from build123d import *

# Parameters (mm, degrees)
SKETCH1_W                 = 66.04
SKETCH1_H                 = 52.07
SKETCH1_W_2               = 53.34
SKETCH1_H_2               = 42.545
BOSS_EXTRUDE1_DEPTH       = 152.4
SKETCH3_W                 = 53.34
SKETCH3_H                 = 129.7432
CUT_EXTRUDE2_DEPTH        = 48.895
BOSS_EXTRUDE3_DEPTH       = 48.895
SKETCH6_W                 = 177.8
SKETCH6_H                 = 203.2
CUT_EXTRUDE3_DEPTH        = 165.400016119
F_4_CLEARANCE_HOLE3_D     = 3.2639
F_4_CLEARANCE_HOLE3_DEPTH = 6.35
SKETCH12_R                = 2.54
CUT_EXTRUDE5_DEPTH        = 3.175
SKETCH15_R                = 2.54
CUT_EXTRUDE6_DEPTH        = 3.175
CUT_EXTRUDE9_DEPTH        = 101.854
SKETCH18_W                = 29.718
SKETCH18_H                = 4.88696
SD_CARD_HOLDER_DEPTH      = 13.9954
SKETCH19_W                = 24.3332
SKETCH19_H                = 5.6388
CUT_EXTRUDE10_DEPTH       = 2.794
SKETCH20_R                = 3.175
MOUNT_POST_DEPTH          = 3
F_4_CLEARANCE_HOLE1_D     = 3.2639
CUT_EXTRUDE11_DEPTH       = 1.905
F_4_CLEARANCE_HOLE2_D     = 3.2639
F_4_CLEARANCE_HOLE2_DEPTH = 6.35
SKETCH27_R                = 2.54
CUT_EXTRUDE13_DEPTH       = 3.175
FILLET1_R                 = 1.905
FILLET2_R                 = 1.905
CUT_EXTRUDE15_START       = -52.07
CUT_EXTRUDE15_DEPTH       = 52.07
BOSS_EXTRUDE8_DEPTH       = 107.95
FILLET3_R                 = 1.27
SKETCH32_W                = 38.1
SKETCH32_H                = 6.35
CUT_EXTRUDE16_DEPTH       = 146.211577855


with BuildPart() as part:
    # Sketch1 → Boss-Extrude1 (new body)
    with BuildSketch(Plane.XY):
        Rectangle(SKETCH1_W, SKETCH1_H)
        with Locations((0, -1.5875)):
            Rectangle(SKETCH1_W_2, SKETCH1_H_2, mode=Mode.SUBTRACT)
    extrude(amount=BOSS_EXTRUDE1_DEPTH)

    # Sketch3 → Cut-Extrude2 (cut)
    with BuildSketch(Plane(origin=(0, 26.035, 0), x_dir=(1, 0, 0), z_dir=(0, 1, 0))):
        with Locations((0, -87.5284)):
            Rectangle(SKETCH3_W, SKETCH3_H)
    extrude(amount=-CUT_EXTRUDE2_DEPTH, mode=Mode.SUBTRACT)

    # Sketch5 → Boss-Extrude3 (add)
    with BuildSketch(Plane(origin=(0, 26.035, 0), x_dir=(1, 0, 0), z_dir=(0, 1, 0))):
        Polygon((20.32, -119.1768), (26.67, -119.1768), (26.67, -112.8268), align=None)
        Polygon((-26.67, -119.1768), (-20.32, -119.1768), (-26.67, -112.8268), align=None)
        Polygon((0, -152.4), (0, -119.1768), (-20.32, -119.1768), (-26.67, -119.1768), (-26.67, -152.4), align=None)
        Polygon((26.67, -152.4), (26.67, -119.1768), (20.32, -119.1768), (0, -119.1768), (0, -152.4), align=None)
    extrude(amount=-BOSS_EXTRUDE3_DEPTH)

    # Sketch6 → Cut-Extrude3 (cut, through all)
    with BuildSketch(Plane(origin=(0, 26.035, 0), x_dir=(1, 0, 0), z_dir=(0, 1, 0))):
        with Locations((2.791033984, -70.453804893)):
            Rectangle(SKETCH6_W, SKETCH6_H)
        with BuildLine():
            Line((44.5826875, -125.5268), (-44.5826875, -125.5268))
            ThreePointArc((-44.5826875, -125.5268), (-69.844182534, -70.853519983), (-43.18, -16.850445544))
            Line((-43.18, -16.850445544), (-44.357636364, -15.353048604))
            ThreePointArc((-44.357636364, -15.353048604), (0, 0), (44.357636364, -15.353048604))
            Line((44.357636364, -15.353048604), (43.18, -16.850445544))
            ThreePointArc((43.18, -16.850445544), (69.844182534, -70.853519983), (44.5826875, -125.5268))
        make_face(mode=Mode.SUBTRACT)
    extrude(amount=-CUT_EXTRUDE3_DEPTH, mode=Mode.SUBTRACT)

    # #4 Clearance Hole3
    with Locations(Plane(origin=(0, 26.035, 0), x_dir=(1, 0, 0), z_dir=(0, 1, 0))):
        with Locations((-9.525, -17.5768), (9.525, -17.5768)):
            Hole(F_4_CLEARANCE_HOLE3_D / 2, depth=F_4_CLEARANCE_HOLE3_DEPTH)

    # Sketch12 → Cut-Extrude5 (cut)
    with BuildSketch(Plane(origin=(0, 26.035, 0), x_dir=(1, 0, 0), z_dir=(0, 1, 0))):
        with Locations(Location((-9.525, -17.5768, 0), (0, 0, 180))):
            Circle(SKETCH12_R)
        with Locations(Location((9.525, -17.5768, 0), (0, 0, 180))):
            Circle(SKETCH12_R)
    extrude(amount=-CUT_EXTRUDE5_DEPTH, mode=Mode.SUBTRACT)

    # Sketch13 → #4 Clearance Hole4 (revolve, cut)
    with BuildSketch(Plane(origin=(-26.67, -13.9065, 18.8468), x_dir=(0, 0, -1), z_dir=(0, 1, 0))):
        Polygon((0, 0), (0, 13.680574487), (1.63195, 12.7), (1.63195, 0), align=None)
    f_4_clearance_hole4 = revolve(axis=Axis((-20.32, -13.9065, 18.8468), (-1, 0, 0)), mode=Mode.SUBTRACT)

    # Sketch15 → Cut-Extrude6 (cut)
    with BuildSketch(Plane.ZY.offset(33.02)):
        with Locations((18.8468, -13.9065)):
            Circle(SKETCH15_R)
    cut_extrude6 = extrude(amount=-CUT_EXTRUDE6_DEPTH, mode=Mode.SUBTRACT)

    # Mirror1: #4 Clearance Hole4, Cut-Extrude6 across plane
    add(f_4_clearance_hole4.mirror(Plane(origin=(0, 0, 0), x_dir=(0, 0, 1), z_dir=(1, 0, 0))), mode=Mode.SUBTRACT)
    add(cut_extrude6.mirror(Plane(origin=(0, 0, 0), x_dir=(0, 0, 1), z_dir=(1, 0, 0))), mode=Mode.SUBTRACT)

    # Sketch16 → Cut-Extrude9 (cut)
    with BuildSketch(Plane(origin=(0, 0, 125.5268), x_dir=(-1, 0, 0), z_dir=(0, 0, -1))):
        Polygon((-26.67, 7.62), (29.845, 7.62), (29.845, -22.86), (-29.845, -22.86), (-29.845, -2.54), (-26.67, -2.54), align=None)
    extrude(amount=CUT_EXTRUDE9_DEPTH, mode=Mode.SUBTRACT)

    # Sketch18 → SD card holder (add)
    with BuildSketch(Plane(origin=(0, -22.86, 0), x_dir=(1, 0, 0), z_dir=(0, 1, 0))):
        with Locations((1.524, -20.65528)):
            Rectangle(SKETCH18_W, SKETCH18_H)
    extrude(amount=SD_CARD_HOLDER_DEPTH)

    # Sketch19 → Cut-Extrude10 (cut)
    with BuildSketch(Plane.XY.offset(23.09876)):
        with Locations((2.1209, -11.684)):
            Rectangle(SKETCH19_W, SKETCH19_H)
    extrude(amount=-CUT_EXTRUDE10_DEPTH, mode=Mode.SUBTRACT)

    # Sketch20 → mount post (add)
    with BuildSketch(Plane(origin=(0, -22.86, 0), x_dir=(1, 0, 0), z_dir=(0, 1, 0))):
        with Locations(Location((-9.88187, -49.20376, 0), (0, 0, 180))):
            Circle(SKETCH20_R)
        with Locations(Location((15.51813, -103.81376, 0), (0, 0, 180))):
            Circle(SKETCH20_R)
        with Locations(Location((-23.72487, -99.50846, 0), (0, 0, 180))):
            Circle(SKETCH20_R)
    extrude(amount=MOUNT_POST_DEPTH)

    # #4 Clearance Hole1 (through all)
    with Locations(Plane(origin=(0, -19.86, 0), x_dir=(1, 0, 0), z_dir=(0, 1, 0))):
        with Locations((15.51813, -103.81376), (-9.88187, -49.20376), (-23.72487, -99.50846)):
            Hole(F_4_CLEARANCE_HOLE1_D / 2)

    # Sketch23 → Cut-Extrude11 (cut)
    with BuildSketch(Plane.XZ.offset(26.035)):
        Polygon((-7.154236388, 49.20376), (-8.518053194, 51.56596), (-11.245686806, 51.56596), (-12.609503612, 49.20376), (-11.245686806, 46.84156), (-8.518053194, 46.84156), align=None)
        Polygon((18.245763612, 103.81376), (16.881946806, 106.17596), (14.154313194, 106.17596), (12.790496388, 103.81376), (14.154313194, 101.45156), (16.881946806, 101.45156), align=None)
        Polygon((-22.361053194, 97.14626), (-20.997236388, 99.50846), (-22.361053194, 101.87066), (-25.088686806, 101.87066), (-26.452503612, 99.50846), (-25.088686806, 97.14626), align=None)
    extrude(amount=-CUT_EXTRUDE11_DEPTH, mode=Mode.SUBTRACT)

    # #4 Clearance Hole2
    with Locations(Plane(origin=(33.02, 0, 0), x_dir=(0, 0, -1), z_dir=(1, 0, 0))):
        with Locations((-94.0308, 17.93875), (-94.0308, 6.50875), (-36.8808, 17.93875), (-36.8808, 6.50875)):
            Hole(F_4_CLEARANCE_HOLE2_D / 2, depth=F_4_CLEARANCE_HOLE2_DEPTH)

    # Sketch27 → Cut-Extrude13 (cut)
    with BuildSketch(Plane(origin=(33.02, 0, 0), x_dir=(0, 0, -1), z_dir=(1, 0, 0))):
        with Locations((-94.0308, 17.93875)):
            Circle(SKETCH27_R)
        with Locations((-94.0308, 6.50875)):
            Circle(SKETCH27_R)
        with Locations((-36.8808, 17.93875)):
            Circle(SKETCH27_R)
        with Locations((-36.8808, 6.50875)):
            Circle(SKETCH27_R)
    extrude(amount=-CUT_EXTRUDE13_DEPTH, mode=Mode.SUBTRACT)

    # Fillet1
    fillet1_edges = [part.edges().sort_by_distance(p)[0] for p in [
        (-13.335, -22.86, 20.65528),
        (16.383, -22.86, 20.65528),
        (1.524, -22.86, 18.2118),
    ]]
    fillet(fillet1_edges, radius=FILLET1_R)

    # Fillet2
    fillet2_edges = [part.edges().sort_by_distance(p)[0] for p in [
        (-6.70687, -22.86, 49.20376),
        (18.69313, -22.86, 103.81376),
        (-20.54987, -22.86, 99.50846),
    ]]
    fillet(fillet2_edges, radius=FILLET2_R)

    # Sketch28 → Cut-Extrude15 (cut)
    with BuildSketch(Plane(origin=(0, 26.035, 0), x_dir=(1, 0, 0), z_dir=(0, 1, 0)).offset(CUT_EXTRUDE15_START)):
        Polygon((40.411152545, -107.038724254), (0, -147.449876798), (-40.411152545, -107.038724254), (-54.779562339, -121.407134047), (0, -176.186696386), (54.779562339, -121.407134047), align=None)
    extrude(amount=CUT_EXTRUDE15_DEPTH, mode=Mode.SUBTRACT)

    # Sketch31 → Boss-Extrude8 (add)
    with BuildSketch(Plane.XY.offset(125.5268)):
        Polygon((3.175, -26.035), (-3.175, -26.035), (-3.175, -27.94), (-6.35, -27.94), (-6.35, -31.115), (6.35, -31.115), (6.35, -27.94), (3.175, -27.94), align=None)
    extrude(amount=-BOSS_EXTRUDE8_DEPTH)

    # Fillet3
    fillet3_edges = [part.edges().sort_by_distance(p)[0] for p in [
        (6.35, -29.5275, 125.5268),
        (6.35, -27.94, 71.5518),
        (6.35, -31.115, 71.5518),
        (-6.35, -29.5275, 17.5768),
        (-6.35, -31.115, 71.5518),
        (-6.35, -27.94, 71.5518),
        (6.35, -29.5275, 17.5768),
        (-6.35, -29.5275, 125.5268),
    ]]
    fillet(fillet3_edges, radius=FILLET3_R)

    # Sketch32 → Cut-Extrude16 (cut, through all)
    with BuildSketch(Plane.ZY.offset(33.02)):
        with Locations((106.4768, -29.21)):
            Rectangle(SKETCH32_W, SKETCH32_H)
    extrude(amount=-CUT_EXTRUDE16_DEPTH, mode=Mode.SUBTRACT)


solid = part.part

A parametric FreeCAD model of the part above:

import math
import FreeCAD as App
import Part
import Sketcher
from FreeCAD import Vector
Q = App.Units.Quantity


def edges_at(feature, points):
    """Names of the edges that pass closest to the given points."""
    edges = feature.Shape.Edges
    near = lambda p: min(range(len(edges)), key=lambda i: edges[i].distToShape(Part.Vertex(*p))[0])
    return sorted({f"Edge{near(p) + 1}" for p in points})

doc = App.newDocument("Part")
body = doc.addObject("PartDesign::Body", "Body")

# Sketch on XY plane
sketch1 = doc.addObject("Sketcher::SketchObject", "Sketch")
body.addObject(sketch1)
sketch1.AttachmentSupport = (doc.XY_Plane, [""])
sketch1.MapMode = "FlatFace"
sketch1.addGeometry([
    Part.LineSegment(Vector(-33, 26, 0), Vector(-33, -26, 0)),  # 0
    Part.LineSegment(Vector(-33, -26, 0), Vector(33, -26, 0)),  # 1
    Part.LineSegment(Vector(33, -26, 0), Vector(33, 26, 0)),  # 2
    Part.LineSegment(Vector(33, 26, 0), Vector(-33, 26, 0)),  # 3
    Part.LineSegment(Vector(27, -23, 0), Vector(-27, -23, 0)),  # 4
    Part.LineSegment(Vector(-27, -23, 0), Vector(-27, 20, 0)),  # 5
    Part.LineSegment(Vector(-27, 20, 0), Vector(27, 20, 0)),  # 6
    Part.LineSegment(Vector(27, 20, 0), Vector(27, -23, 0)),  # 7
], False)
sketch1.addConstraint([
    Sketcher.Constraint("Coincident", 0, 2, 1, 1),
    Sketcher.Constraint("Coincident", 1, 2, 2, 1),
    Sketcher.Constraint("Coincident", 2, 2, 3, 1),
    Sketcher.Constraint("Coincident", 3, 2, 0, 1),
    Sketcher.Constraint("Coincident", 4, 2, 5, 1),
    Sketcher.Constraint("Coincident", 5, 2, 6, 1),
    Sketcher.Constraint("Coincident", 6, 2, 7, 1),
    Sketcher.Constraint("Coincident", 7, 2, 4, 1),
    Sketcher.Constraint("Vertical", 0),
    Sketcher.Constraint("Horizontal", 1),
    Sketcher.Constraint("Vertical", 2),
    Sketcher.Constraint("Horizontal", 3),
    Sketcher.Constraint("Horizontal", 4),
    Sketcher.Constraint("Vertical", 5),
    Sketcher.Constraint("Horizontal", 6),
    Sketcher.Constraint("Vertical", 7),
    Sketcher.Constraint("Symmetric", 0, 2, 2, 2, -1, 1),
    Sketcher.Constraint("DistanceX", 1, 1, 1, 2, Q("2.6 in")),
    Sketcher.Constraint("DistanceX", 4, 2, 4, 1, Q("2.1 in")),
    Sketcher.Constraint("DistanceY", 0, 2, 0, 1, Q("2.05 in")),
    Sketcher.Constraint("DistanceY", 4, 2, -1, 1, Q("0.9 in")),
    Sketcher.Constraint("DistanceY", 0, 2, 5, 2, Q("1.8 in")),
    Sketcher.Constraint("DistanceX", 4, 2, -1, 1, Q("1.05 in")),
])
pad1 = doc.addObject("PartDesign::Pad", "Pad")
body.addObject(pad1)
pad1.Profile = sketch1
pad1.Length = Q("6 in")

# Sketch on XZ plane
sketch2 = doc.addObject("Sketcher::SketchObject", "Sketch001")
body.addObject(sketch2)
sketch2.AttachmentSupport = (doc.XZ_Plane, [""])
sketch2.MapMode = "FlatFace"
sketch2.AttachmentOffset = App.Placement(Vector(0, 0, -1.025 * 25.4), App.Rotation())
sketch2.addGeometry([
    Part.LineSegment(Vector(-27, 23, 0), Vector(-27, 152, 0)),
    Part.LineSegment(Vector(-27, 152, 0), Vector(27, 152, 0)),
    Part.LineSegment(Vector(27, 152, 0), Vector(27, 23, 0)),
    Part.LineSegment(Vector(27, 23, 0), Vector(-27, 23, 0)),
], False)
sketch2.addConstraint([
    Sketcher.Constraint("Coincident", 0, 2, 1, 1),
    Sketcher.Constraint("Coincident", 1, 2, 2, 1),
    Sketcher.Constraint("Coincident", 2, 2, 3, 1),
    Sketcher.Constraint("Coincident", 3, 2, 0, 1),
    Sketcher.Constraint("Vertical", 0),
    Sketcher.Constraint("Horizontal", 1),
    Sketcher.Constraint("Vertical", 2),
    Sketcher.Constraint("Horizontal", 3),
    Sketcher.Constraint("DistanceX", 1, 1, 1, 2, Q("2.1 in")),
    Sketcher.Constraint("DistanceY", -1, 1, 0, 2, Q("6 in")),
    Sketcher.Constraint("DistanceY", 0, 1, 0, 2, Q("5.108 in")),
    Sketcher.Constraint("DistanceX", 0, 2, -1, 1, Q("1.05 in")),
])
pocket1 = doc.addObject("PartDesign::Pocket", "Pocket")
body.addObject(pocket1)
pocket1.Profile = sketch2
pocket1.Length = Q("1.925 in")
pocket1.Reversed = True

# Sketch on XZ plane
sketch3 = doc.addObject("Sketcher::SketchObject", "Sketch002")
body.addObject(sketch3)
sketch3.AttachmentSupport = (doc.XZ_Plane, [""])
sketch3.MapMode = "FlatFace"
sketch3.AttachmentOffset = App.Placement(Vector(0, 0, -1.025 * 25.4), App.Rotation())
sketch3.addGeometry([
    Part.LineSegment(Vector(27, 113, 0), Vector(20, 119, 0)),  # 0
    Part.LineSegment(Vector(20, 119, 0), Vector(-20, 119, 0)),  # 1
    Part.LineSegment(Vector(-20, 119, 0), Vector(-27, 113, 0)),  # 2
    Part.LineSegment(Vector(-27, 113, 0), Vector(-27, 152, 0)),  # 3
    Part.LineSegment(Vector(-27, 152, 0), Vector(27, 152, 0)),  # 4
    Part.LineSegment(Vector(27, 152, 0), Vector(27, 113, 0)),  # 5
], False)
sketch3.addConstraint([
    Sketcher.Constraint("Coincident", 0, 2, 1, 1),
    Sketcher.Constraint("Coincident", 1, 2, 2, 1),
    Sketcher.Constraint("Coincident", 2, 2, 3, 1),
    Sketcher.Constraint("Coincident", 3, 2, 4, 1),
    Sketcher.Constraint("Coincident", 4, 2, 5, 1),
    Sketcher.Constraint("Coincident", 5, 2, 0, 1),
    Sketcher.Constraint("Horizontal", 1),
    Sketcher.Constraint("Vertical", 3),
    Sketcher.Constraint("Horizontal", 4),
    Sketcher.Constraint("Vertical", 5),
    Sketcher.Constraint("Symmetric", 2, 2, 5, 2, -2),
    Sketcher.Constraint("Perpendicular", 0, 2),
    Sketcher.Constraint("Equal", 0, 2),
    Sketcher.Constraint("DistanceX", 1, 2, 1, 1, Q("1.6 in")),
    Sketcher.Constraint("DistanceX", 4, 1, 4, 2, Q("2.1 in")),
    Sketcher.Constraint("DistanceY", -1, 1, 3, 2, Q("6 in")),
    Sketcher.Constraint("DistanceY", 3, 1, 3, 2, Q("1.558 in")),
])
pad2 = doc.addObject("PartDesign::Pad", "Pad001")
body.addObject(pad2)
pad2.Profile = sketch3
pad2.Length = Q("1.925 in")

# Sketch on XZ plane
sketch4 = doc.addObject("Sketcher::SketchObject", "Sketch003")
body.addObject(sketch4)
sketch4.AttachmentSupport = (doc.XZ_Plane, [""])
sketch4.MapMode = "FlatFace"
sketch4.AttachmentOffset = App.Placement(Vector(0, 0, -1.025 * 25.4), App.Rotation())
sketch4.addGeometry([
    Part.LineSegment(Vector(-86.1, -31.1, 0), Vector(-86.1, 172.1, 0)),  # 0
    Part.LineSegment(Vector(-86.1, 172.1, 0), Vector(91.7, 172.1, 0)),  # 1
    Part.LineSegment(Vector(91.7, 172.1, 0), Vector(91.7, -31.1, 0)),  # 2
    Part.LineSegment(Vector(91.7, -31.1, 0), Vector(-86.1, -31.1, 0)),  # 3
    Part.ArcOfCircle(Part.Circle(Vector(0, 71.8, 0), Vector(0, 0, 1), 69.8), math.radians(-52), math.radians(50)),  # 4
    Part.LineSegment(Vector(44.6, 125.5, 0), Vector(-44.6, 125.5, 0)),  # 5
    Part.ArcOfCircle(Part.Circle(Vector(0, 71.8, 0), Vector(0, 0, 1), 69.8), math.radians(130), math.radians(232)),  # 6
    Part.LineSegment(Vector(-43.2, 16.9, 0), Vector(-44.4, 15.4, 0)),  # 7
    Part.ArcOfCircle(Part.Circle(Vector(0, 71.8, 0), Vector(0, 0, 1), 71.8), math.radians(-128), math.radians(-52)),  # 8
    Part.LineSegment(Vector(44.4, 15.4, 0), Vector(43.2, 16.9, 0)),  # 9
], False)
sketch4.addConstraint([
    Sketcher.Constraint("Coincident", 0, 2, 1, 1),
    Sketcher.Constraint("Coincident", 1, 2, 2, 1),
    Sketcher.Constraint("Coincident", 2, 2, 3, 1),
    Sketcher.Constraint("Coincident", 3, 2, 0, 1),
    Sketcher.Constraint("Coincident", 4, 2, 5, 1),
    Sketcher.Constraint("Coincident", 5, 2, 6, 1),
    Sketcher.Constraint("Coincident", 6, 2, 7, 1),
    Sketcher.Constraint("Coincident", 7, 2, 8, 1),
    Sketcher.Constraint("Coincident", 8, 2, 9, 1),
    Sketcher.Constraint("Coincident", 9, 2, 4, 1),
    Sketcher.Constraint("Vertical", 0),
    Sketcher.Constraint("Horizontal", 1),
    Sketcher.Constraint("Vertical", 2),
    Sketcher.Constraint("Horizontal", 3),
    Sketcher.Constraint("Horizontal", 5),
    Sketcher.Constraint("Coincident", 6, 3, 4, 3),
    Sketcher.Constraint("Coincident", 8, 3, 4, 3),
    Sketcher.Constraint("Equal", 4, 6),
    Sketcher.Constraint("Symmetric", 7, 2, 8, 2, -2),
    Sketcher.Constraint("Horizontal", 6, 2, 9, 2),
    Sketcher.Constraint("DistanceX", 1, 1, 1, 2, Q("7 in")),
    Sketcher.Constraint("DistanceY", 0, 1, 0, 2, Q("8 in")),
    Sketcher.Constraint("Radius", 4, Q("2.75 in")),
    Sketcher.Constraint("Radius", 8, Q("2.825 in")),
    Sketcher.Constraint("DistanceX", 6, 2, -1, 1, Q("1.7 in")),
    Sketcher.Constraint("DistanceY", -1, 1, 4, 3, Q("2.825 in")),
    Sketcher.Constraint("DistanceY", -1, 1, 4, 2, Q("4.942 in")),
    Sketcher.Constraint("DistanceY", -1, 1, 7, 2, 15.353049),
    Sketcher.Constraint("DistanceX", 0, 2, 5, 2, 41.526279),
    Sketcher.Constraint("DistanceY", 3, 2, 6, 2, 47.996641),
])
pocket2 = doc.addObject("PartDesign::Pocket", "Pocket001")
body.addObject(pocket2)
pocket2.Profile = sketch4
pocket2.Type = "ThroughAll"
pocket2.Reversed = True

# Sketch on XZ plane
sketch5 = doc.addObject("Sketcher::SketchObject", "Sketch004")
body.addObject(sketch5)
sketch5.AttachmentSupport = (doc.XZ_Plane, [""])
sketch5.MapMode = "FlatFace"
sketch5.AttachmentOffset = App.Placement(Vector(0, 0, -1.025 * 25.4), App.Rotation())
sketch5.addGeometry([
    Part.Circle(Vector(-9.5, 17.6, 0), Vector(0, 0, 1), 1.6),
    Part.Circle(Vector(9.5, 17.6, 0), Vector(0, 0, 1), 1.6),
], False)
sketch5.addConstraint([
    Sketcher.Constraint("Equal", 0, 1),
    Sketcher.Constraint("Symmetric", 0, 3, 1, 3, -2),
    Sketcher.Constraint("Diameter", 0, Q("0.1285 in")),
    Sketcher.Constraint("DistanceX", 0, 3, 1, 3, Q("0.75 in")),
    Sketcher.Constraint("DistanceY", -1, 1, 0, 3, Q("0.692 in")),
])
doc.recompute()
hole = doc.addObject("PartDesign::Hole", "Hole")
body.addObject(hole)
hole.Profile = sketch5
hole.ThreadType = "None"
hole.Diameter = Q("0.1285 in")
hole.DepthType = "Dimension"
hole.Depth = Q("0.25 in")
hole.DrillPoint = "Flat"
hole.Reversed = True

# Sketch on XZ plane
sketch6 = doc.addObject("Sketcher::SketchObject", "Sketch005")
body.addObject(sketch6)
sketch6.AttachmentSupport = (doc.XZ_Plane, [""])
sketch6.MapMode = "FlatFace"
sketch6.AttachmentOffset = App.Placement(Vector(0, 0, -1.025 * 25.4), App.Rotation())
sketch6.addGeometry([
    Part.Circle(Vector(-9.5, 17.6, 0), Vector(0, 0, 1), 2.5),
    Part.Circle(Vector(9.5, 17.6, 0), Vector(0, 0, 1), 2.5),
], False)
sketch6.addConstraint([
    Sketcher.Constraint("Equal", 0, 1),
    Sketcher.Constraint("Symmetric", 0, 3, 1, 3, -2),
    Sketcher.Constraint("Diameter", 0, Q("0.2 in")),
    Sketcher.Constraint("DistanceX", 0, 3, 1, 3, Q("0.75 in")),
    Sketcher.Constraint("DistanceY", -1, 1, 0, 3, Q("0.692 in")),
])
pocket3 = doc.addObject("PartDesign::Pocket", "Pocket002")
body.addObject(pocket3)
pocket3.Profile = sketch6
pocket3.Length = Q("0.125 in")
pocket3.Reversed = True

# Sketch on XZ plane
sketch7 = doc.addObject("Sketcher::SketchObject", "Sketch006")
body.addObject(sketch7)
sketch7.AttachmentSupport = (doc.XZ_Plane, [""])
sketch7.MapMode = "FlatFace"
sketch7.AttachmentOffset = App.Placement(Vector(0, 0, 0.5475 * 25.4), App.Rotation())
sketch7.addGeometry([
    Part.LineSegment(Vector(-40.4, 18.8, 0), Vector(-26.7, 18.8, 0)),
    Part.LineSegment(Vector(-26.7, 18.8, 0), Vector(-26.7, 17.2, 0)),
    Part.LineSegment(Vector(-26.7, 17.2, 0), Vector(-39.4, 17.2, 0)),
    Part.LineSegment(Vector(-39.4, 17.2, 0), Vector(-40.4, 18.8, 0)),
], False)
sketch7.addGeometry(Part.LineSegment(Vector(-26.7, 18.8, 0), Vector(-40.4, 18.8, 0)), True)  # axis
sketch7.addConstraint([
    Sketcher.Constraint("Coincident", 0, 2, 1, 1),
    Sketcher.Constraint("Coincident", 1, 2, 2, 1),
    Sketcher.Constraint("Coincident", 2, 2, 3, 1),
    Sketcher.Constraint("Coincident", 3, 2, 0, 1),
    Sketcher.Constraint("Horizontal", 0),
    Sketcher.Constraint("Vertical", 1),
    Sketcher.Constraint("Horizontal", 2),
    Sketcher.Constraint("Horizontal", 4),
    Sketcher.Constraint("Coincident", 4, 1, 0, 2),
    Sketcher.Constraint("Equal", 0, 4),
    Sketcher.Constraint("DistanceX", 2, 2, 2, 1, Q("0.5 in")),
    Sketcher.Constraint("Angle", 3, Q("121 deg")),
    Sketcher.Constraint("DistanceX", 0, 2, -1, 1, Q("1.05 in")),
    Sketcher.Constraint("DistanceY", -1, 1, 0, 2, Q("0.742 in")),
    Sketcher.Constraint("DistanceY", 1, 2, 1, 1, 1.63195),
])
groove = doc.addObject("PartDesign::Groove", "Groove")
body.addObject(groove)
groove.Profile = sketch7
groove.ReferenceAxis = (sketch7, ["Axis0"])
groove.Angle = 360

# Sketch on YZ plane
sketch8 = doc.addObject("Sketcher::SketchObject", "Sketch007")
body.addObject(sketch8)
sketch8.AttachmentSupport = (doc.YZ_Plane, [""])
sketch8.MapMode = "FlatFace"
sketch8.AttachmentOffset = App.Placement(Vector(0, 0, -1.3 * 25.4), App.Rotation())
sketch8.addGeometry(Part.Circle(Vector(-13.9, 18.8, 0), Vector(0, 0, 1), 2.5), False)
sketch8.addConstraint([
    Sketcher.Constraint("Diameter", 0, Q("0.2 in")),
    Sketcher.Constraint("DistanceY", -1, 1, 0, 3, Q("0.742 in")),
    Sketcher.Constraint("DistanceX", 0, 3, -1, 1, Q("0.5475 in")),
])
pocket4 = doc.addObject("PartDesign::Pocket", "Pocket003")
body.addObject(pocket4)
pocket4.Profile = sketch8
pocket4.Length = Q("0.125 in")
pocket4.Reversed = True
doc.recompute()

mirrored = doc.addObject("PartDesign::Mirrored", "Mirrored")
body.addObject(mirrored)
mirrored.Originals = [groove, pocket4]
mirrored.MirrorPlane = (doc.YZ_Plane, [""])
body.Tip = mirrored

# Sketch on XY plane
sketch9 = doc.addObject("Sketcher::SketchObject", "Sketch008")
body.addObject(sketch9)
sketch9.AttachmentSupport = (doc.XY_Plane, [""])
sketch9.MapMode = "FlatFace"
sketch9.AttachmentOffset = App.Placement(Vector(0, 0, 4.942 * 25.4), App.Rotation())
sketch9.addGeometry([
    Part.LineSegment(Vector(-29.8, 7.6, 0), Vector(26.7, 7.6, 0)),  # 0
    Part.LineSegment(Vector(26.7, 7.6, 0), Vector(26.7, -2.5, 0)),  # 1
    Part.LineSegment(Vector(26.7, -2.5, 0), Vector(29.8, -2.5, 0)),  # 2
    Part.LineSegment(Vector(29.8, -2.5, 0), Vector(29.8, -22.9, 0)),  # 3
    Part.LineSegment(Vector(29.8, -22.9, 0), Vector(-29.8, -22.9, 0)),  # 4
    Part.LineSegment(Vector(-29.8, -22.9, 0), Vector(-29.8, 7.6, 0)),  # 5
], False)
sketch9.addConstraint([
    Sketcher.Constraint("Coincident", 0, 2, 1, 1),
    Sketcher.Constraint("Coincident", 1, 2, 2, 1),
    Sketcher.Constraint("Coincident", 2, 2, 3, 1),
    Sketcher.Constraint("Coincident", 3, 2, 4, 1),
    Sketcher.Constraint("Coincident", 4, 2, 5, 1),
    Sketcher.Constraint("Coincident", 5, 2, 0, 1),
    Sketcher.Constraint("Horizontal", 0),
    Sketcher.Constraint("Vertical", 1),
    Sketcher.Constraint("Horizontal", 2),
    Sketcher.Constraint("Vertical", 3),
    Sketcher.Constraint("Horizontal", 4),
    Sketcher.Constraint("Vertical", 5),
    Sketcher.Constraint("DistanceY", 1, 2, 1, 1, Q("0.4 in")),
    Sketcher.Constraint("DistanceY", 3, 2, 3, 1, Q("0.8 in")),
    Sketcher.Constraint("DistanceX", 4, 2, 4, 1, Q("2.35 in")),
    Sketcher.Constraint("DistanceY", -1, 1, 0, 2, Q("0.3 in")),
    Sketcher.Constraint("DistanceX", 0, 1, 0, 2, Q("2.225 in")),
    Sketcher.Constraint("DistanceX", -1, 1, 0, 2, Q("1.05 in")),
])
pocket5 = doc.addObject("PartDesign::Pocket", "Pocket004")
body.addObject(pocket5)
pocket5.Profile = sketch9
pocket5.Length = Q("4.01 in")

# Sketch on XZ plane
sketch10 = doc.addObject("Sketcher::SketchObject", "Sketch009")
body.addObject(sketch10)
sketch10.AttachmentSupport = (doc.XZ_Plane, [""])
sketch10.MapMode = "FlatFace"
sketch10.AttachmentOffset = App.Placement(Vector(0, 0, 0.9 * 25.4), App.Rotation())
sketch10.addGeometry([
    Part.LineSegment(Vector(-13.3, 18.2, 0), Vector(-13.3, 23.1, 0)),
    Part.LineSegment(Vector(-13.3, 23.1, 0), Vector(16.4, 23.1, 0)),
    Part.LineSegment(Vector(16.4, 23.1, 0), Vector(16.4, 18.2, 0)),
    Part.LineSegment(Vector(16.4, 18.2, 0), Vector(-13.3, 18.2, 0)),
], False)
sketch10.addConstraint([
    Sketcher.Constraint("Coincident", 0, 2, 1, 1),
    Sketcher.Constraint("Coincident", 1, 2, 2, 1),
    Sketcher.Constraint("Coincident", 2, 2, 3, 1),
    Sketcher.Constraint("Coincident", 3, 2, 0, 1),
    Sketcher.Constraint("Vertical", 0),
    Sketcher.Constraint("Horizontal", 1),
    Sketcher.Constraint("Vertical", 2),
    Sketcher.Constraint("Horizontal", 3),
    Sketcher.Constraint("DistanceX", 1, 1, 1, 2, Q("1.17 in")),
    Sketcher.Constraint("DistanceY", 0, 1, 0, 2, Q("0.1924 in")),
    Sketcher.Constraint("DistanceX", 0, 2, -1, 1, Q("0.525 in")),
    Sketcher.Constraint("DistanceY", -1, 1, 2, 2, Q("0.717 in")),
])
pad3 = doc.addObject("PartDesign::Pad", "Pad002")
body.addObject(pad3)
pad3.Profile = sketch10
pad3.Length = Q("0.551 in")
pad3.Reversed = True

# Sketch on XY plane
sketch11 = doc.addObject("Sketcher::SketchObject", "Sketch010")
body.addObject(sketch11)
sketch11.AttachmentSupport = (doc.XY_Plane, [""])
sketch11.MapMode = "FlatFace"
sketch11.AttachmentOffset = App.Placement(Vector(0, 0, 0.9094 * 25.4), App.Rotation())
sketch11.addGeometry([
    Part.LineSegment(Vector(-10, -9, 0), Vector(-10, -15, 0)),
    Part.LineSegment(Vector(-10, -15, 0), Vector(14, -15, 0)),
    Part.LineSegment(Vector(14, -15, 0), Vector(14, -9, 0)),
    Part.LineSegment(Vector(14, -9, 0), Vector(-10, -9, 0)),
], False)
sketch11.addConstraint([
    Sketcher.Constraint("Coincident", 0, 2, 1, 1),
    Sketcher.Constraint("Coincident", 1, 2, 2, 1),
    Sketcher.Constraint("Coincident", 2, 2, 3, 1),
    Sketcher.Constraint("Coincident", 3, 2, 0, 1),
    Sketcher.Constraint("Vertical", 0),
    Sketcher.Constraint("Horizontal", 1),
    Sketcher.Constraint("Vertical", 2),
    Sketcher.Constraint("Horizontal", 3),
    Sketcher.Constraint("DistanceX", 1, 1, 1, 2, Q("0.958 in")),
    Sketcher.Constraint("DistanceY", 0, 2, 0, 1, Q("0.222 in")),
    Sketcher.Constraint("DistanceY", 0, 2, -1, 1, Q("0.571 in")),
    Sketcher.Constraint("DistanceX", -1, 1, 1, 2, Q("0.5625 in")),
])
pocket6 = doc.addObject("PartDesign::Pocket", "Pocket005")
body.addObject(pocket6)
pocket6.Profile = sketch11
pocket6.Length = Q("0.11 in")

# Sketch on XZ plane
sketch12 = doc.addObject("Sketcher::SketchObject", "Sketch011")
body.addObject(sketch12)
sketch12.AttachmentSupport = (doc.XZ_Plane, [""])
sketch12.MapMode = "FlatFace"
sketch12.AttachmentOffset = App.Placement(Vector(0, 0, 0.9 * 25.4), App.Rotation())
sketch12.addGeometry([
    Part.Circle(Vector(-9.9, 49.2, 0), Vector(0, 0, 1), 3.2),
    Part.Circle(Vector(15.5, 103.8, 0), Vector(0, 0, 1), 3.2),
    Part.Circle(Vector(-23.7, 99.5, 0), Vector(0, 0, 1), 3.2),
], False)
sketch12.addConstraint([
    Sketcher.Constraint("Equal", 0, 1),
    Sketcher.Constraint("Equal", 1, 2),
    Sketcher.Constraint("Diameter", 0, Q("0.25 in")),
    Sketcher.Constraint("DistanceX", 0, 3, 1, 3, Q("1 in")),
    Sketcher.Constraint("DistanceY", 0, 3, 1, 3, Q("2.15 in")),
    Sketcher.Constraint("DistanceX", 2, 3, 1, 3, Q("1.545 in")),
    Sketcher.Constraint("DistanceY", 2, 3, 1, 3, Q("0.1695 in")),
    Sketcher.Constraint("DistanceX", 0, 3, -1, 1, 9.88187),
    Sketcher.Constraint("DistanceY", -1, 1, 0, 3, 49.20376),
])
pad4 = doc.addObject("PartDesign::Pad", "Pad003")
body.addObject(pad4)
pad4.Profile = sketch12
pad4.Length = 3
pad4.Reversed = True

# Sketch on XZ plane
sketch13 = doc.addObject("Sketcher::SketchObject", "Sketch012")
body.addObject(sketch13)
sketch13.AttachmentSupport = (doc.XZ_Plane, [""])
sketch13.MapMode = "FlatFace"
sketch13.AttachmentOffset = App.Placement(Vector(0, 0, 19.86), App.Rotation())
sketch13.addGeometry([
    Part.Circle(Vector(15.5, 103.8, 0), Vector(0, 0, 1), 1.6),
    Part.Circle(Vector(-9.9, 49.2, 0), Vector(0, 0, 1), 1.6),
    Part.Circle(Vector(-23.7, 99.5, 0), Vector(0, 0, 1), 1.6),
], False)
sketch13.addConstraint([
    Sketcher.Constraint("Equal", 0, 1),
    Sketcher.Constraint("Equal", 1, 2),
    Sketcher.Constraint("DistanceX", 1, 3, 0, 3, Q("1 in")),
    Sketcher.Constraint("Diameter", 0, Q("0.1285 in")),
    Sketcher.Constraint("DistanceY", 1, 3, 0, 3, Q("2.15 in")),
    Sketcher.Constraint("DistanceX", 2, 3, 0, 3, Q("1.545 in")),
    Sketcher.Constraint("DistanceY", 2, 3, 0, 3, Q("0.1695 in")),
    Sketcher.Constraint("DistanceX", -1, 1, 0, 3, 15.51813),
    Sketcher.Constraint("DistanceY", -1, 1, 0, 3, 103.81376),
])
doc.recompute()
hole2 = doc.addObject("PartDesign::Hole", "Hole001")
body.addObject(hole2)
hole2.Profile = sketch13
hole2.ThreadType = "None"
hole2.Diameter = Q("0.1285 in")
hole2.DepthType = "ThroughAll"
hole2.Reversed = True

# Sketch on XZ plane
sketch14 = doc.addObject("Sketcher::SketchObject", "Sketch013")
body.addObject(sketch14)
sketch14.AttachmentSupport = (doc.XZ_Plane, [""])
sketch14.MapMode = "FlatFace"
sketch14.AttachmentOffset = App.Placement(Vector(0, 0, 1.025 * 25.4), App.Rotation())
sketch14.addGeometry([
    Part.LineSegment(Vector(-7.2, 49.2, 0), Vector(-8.5, 51.6, 0)),  # 0
    Part.LineSegment(Vector(-8.5, 51.6, 0), Vector(-11.2, 51.6, 0)),  # 1
    Part.LineSegment(Vector(-11.2, 51.6, 0), Vector(-12.6, 49.2, 0)),  # 2
    Part.LineSegment(Vector(-12.6, 49.2, 0), Vector(-11.2, 46.8, 0)),  # 3
    Part.LineSegment(Vector(-11.2, 46.8, 0), Vector(-8.5, 46.8, 0)),  # 4
    Part.LineSegment(Vector(-8.5, 46.8, 0), Vector(-7.2, 49.2, 0)),  # 5
    Part.LineSegment(Vector(18.2, 103.8, 0), Vector(16.9, 106.2, 0)),  # 6
    Part.LineSegment(Vector(16.9, 106.2, 0), Vector(14.2, 106.2, 0)),  # 7
    Part.LineSegment(Vector(14.2, 106.2, 0), Vector(12.8, 103.8, 0)),  # 8
    Part.LineSegment(Vector(12.8, 103.8, 0), Vector(14.2, 101.5, 0)),  # 9
    Part.LineSegment(Vector(14.2, 101.5, 0), Vector(16.9, 101.5, 0)),  # 10
    Part.LineSegment(Vector(16.9, 101.5, 0), Vector(18.2, 103.8, 0)),  # 11
    Part.LineSegment(Vector(-22.4, 97.1, 0), Vector(-21, 99.5, 0)),  # 12
    Part.LineSegment(Vector(-21, 99.5, 0), Vector(-22.4, 101.9, 0)),  # 13
    Part.LineSegment(Vector(-22.4, 101.9, 0), Vector(-25.1, 101.9, 0)),  # 14
    Part.LineSegment(Vector(-25.1, 101.9, 0), Vector(-26.5, 99.5, 0)),  # 15
    Part.LineSegment(Vector(-26.5, 99.5, 0), Vector(-25.1, 97.1, 0)),  # 16
    Part.LineSegment(Vector(-25.1, 97.1, 0), Vector(-22.4, 97.1, 0)),  # 17
], False)
sketch14.addConstraint([
    Sketcher.Constraint("Coincident", 0, 2, 1, 1),
    Sketcher.Constraint("Coincident", 1, 2, 2, 1),
    Sketcher.Constraint("Coincident", 2, 2, 3, 1),
    Sketcher.Constraint("Coincident", 3, 2, 4, 1),
    Sketcher.Constraint("Coincident", 4, 2, 5, 1),
    Sketcher.Constraint("Coincident", 5, 2, 0, 1),
    Sketcher.Constraint("Coincident", 6, 2, 7, 1),
    Sketcher.Constraint("Coincident", 7, 2, 8, 1),
    Sketcher.Constraint("Coincident", 8, 2, 9, 1),
    Sketcher.Constraint("Coincident", 9, 2, 10, 1),
    Sketcher.Constraint("Coincident", 10, 2, 11, 1),
    Sketcher.Constraint("Coincident", 11, 2, 6, 1),
    Sketcher.Constraint("Coincident", 12, 2, 13, 1),
    Sketcher.Constraint("Coincident", 13, 2, 14, 1),
    Sketcher.Constraint("Coincident", 14, 2, 15, 1),
    Sketcher.Constraint("Coincident", 15, 2, 16, 1),
    Sketcher.Constraint("Coincident", 16, 2, 17, 1),
    Sketcher.Constraint("Coincident", 17, 2, 12, 1),
    Sketcher.Constraint("Horizontal", 1),
    Sketcher.Constraint("Horizontal", 4),
    Sketcher.Constraint("Horizontal", 7),
    Sketcher.Constraint("Horizontal", 10),
    Sketcher.Constraint("Horizontal", 14),
    Sketcher.Constraint("Horizontal", 17),
    Sketcher.Constraint("Parallel", 0, 3),
    Sketcher.Constraint("Parallel", 2, 5),
    Sketcher.Constraint("Parallel", 3, 6),
    Sketcher.Constraint("Parallel", 5, 8),
    Sketcher.Constraint("Parallel", 6, 9),
    Sketcher.Constraint("Parallel", 8, 11),
    Sketcher.Constraint("Parallel", 11, 12),
    Sketcher.Constraint("Parallel", 9, 13),
    Sketcher.Constraint("Parallel", 12, 15),
    Sketcher.Constraint("Parallel", 13, 16),
    Sketcher.Constraint("Horizontal", 2, 2, 5, 2),
    Sketcher.Constraint("Horizontal", 8, 2, 11, 2),
    Sketcher.Constraint("Horizontal", 12, 2, 15, 2),
    Sketcher.Constraint("Vertical", 1, 2, 3, 2),
    Sketcher.Constraint("Vertical", 0, 2, 4, 2),
    Sketcher.Constraint("Vertical", 7, 2, 9, 2),
    Sketcher.Constraint("Vertical", 14, 2, 16, 2),
    Sketcher.Constraint("Equal", 4, 7),
    Sketcher.Constraint("Equal", 10, 14),
    Sketcher.Constraint("Equal", 5, 6),
    Sketcher.Constraint("Equal", 11, 12),
    Sketcher.Constraint("Angle", 0, Q("120 deg")),
    Sketcher.Constraint("DistanceX", 0, 2, 6, 2, Q("1 in")),
    Sketcher.Constraint("DistanceY", 0, 2, 6, 2, Q("2.15 in")),
    Sketcher.Constraint("DistanceY", 2, 2, 1, 2, Q("0.093 in")),
    Sketcher.Constraint("DistanceX", 13, 2, 10, 2, Q("1.545 in")),
    Sketcher.Constraint("DistanceY", 12, 2, 8, 2, Q("0.1695 in")),
    Sketcher.Constraint("DistanceX", 1, 2, 1, 1, 2.727634),
    Sketcher.Constraint("DistanceY", -1, 1, 0, 2, 51.56596),
    Sketcher.Constraint("DistanceX", 0, 2, -1, 1, 8.518053),
])
pocket7 = doc.addObject("PartDesign::Pocket", "Pocket006")
body.addObject(pocket7)
pocket7.Profile = sketch14
pocket7.Length = Q("0.075 in")

# Sketch on YZ plane
sketch15 = doc.addObject("Sketcher::SketchObject", "Sketch014")
body.addObject(sketch15)
sketch15.AttachmentSupport = (doc.YZ_Plane, [""])
sketch15.MapMode = "FlatFace"
sketch15.AttachmentOffset = App.Placement(Vector(0, 0, 1.3 * 25.4), App.Rotation())
sketch15.addGeometry([
    Part.Circle(Vector(17.9, 94, 0), Vector(0, 0, 1), 1.6),
    Part.Circle(Vector(6.5, 94, 0), Vector(0, 0, 1), 1.6),
    Part.Circle(Vector(17.9, 36.9, 0), Vector(0, 0, 1), 1.6),
    Part.Circle(Vector(6.5, 36.9, 0), Vector(0, 0, 1), 1.6),
], False)
sketch15.addConstraint([
    Sketcher.Constraint("Equal", 0, 1),
    Sketcher.Constraint("Equal", 1, 2),
    Sketcher.Constraint("Equal", 2, 3),
    Sketcher.Constraint("Horizontal", 0, 3, 1, 3),
    Sketcher.Constraint("Horizontal", 2, 3, 3, 3),
    Sketcher.Constraint("Vertical", 0, 3, 2, 3),
    Sketcher.Constraint("Vertical", 1, 3, 3, 3),
    Sketcher.Constraint("Diameter", 0, Q("0.1285 in")),
    Sketcher.Constraint("DistanceX", 1, 3, 0, 3, Q("0.45 in")),
    Sketcher.Constraint("DistanceY", 2, 3, 0, 3, Q("2.25 in")),
    Sketcher.Constraint("DistanceY", -1, 1, 0, 3, Q("3.702 in")),
    Sketcher.Constraint("DistanceX", -1, 1, 0, 3, 17.93875),
])
doc.recompute()
hole3 = doc.addObject("PartDesign::Hole", "Hole002")
body.addObject(hole3)
hole3.Profile = sketch15
hole3.ThreadType = "None"
hole3.Diameter = Q("0.1285 in")
hole3.DepthType = "Dimension"
hole3.Depth = Q("0.25 in")
hole3.DrillPoint = "Flat"

# Sketch on YZ plane
sketch16 = doc.addObject("Sketcher::SketchObject", "Sketch015")
body.addObject(sketch16)
sketch16.AttachmentSupport = (doc.YZ_Plane, [""])
sketch16.MapMode = "FlatFace"
sketch16.AttachmentOffset = App.Placement(Vector(0, 0, 1.3 * 25.4), App.Rotation())
sketch16.addGeometry([
    Part.Circle(Vector(17.9, 94, 0), Vector(0, 0, 1), 2.5),
    Part.Circle(Vector(6.5, 94, 0), Vector(0, 0, 1), 2.5),
    Part.Circle(Vector(17.9, 36.9, 0), Vector(0, 0, 1), 2.5),
    Part.Circle(Vector(6.5, 36.9, 0), Vector(0, 0, 1), 2.5),
], False)
sketch16.addConstraint([
    Sketcher.Constraint("Equal", 0, 1),
    Sketcher.Constraint("Equal", 1, 2),
    Sketcher.Constraint("Equal", 2, 3),
    Sketcher.Constraint("Horizontal", 0, 3, 1, 3),
    Sketcher.Constraint("Horizontal", 2, 3, 3, 3),
    Sketcher.Constraint("Vertical", 0, 3, 2, 3),
    Sketcher.Constraint("Vertical", 1, 3, 3, 3),
    Sketcher.Constraint("Diameter", 0, Q("0.2 in")),
    Sketcher.Constraint("DistanceX", 1, 3, 0, 3, Q("0.45 in")),
    Sketcher.Constraint("DistanceY", 2, 3, 0, 3, Q("2.25 in")),
    Sketcher.Constraint("DistanceY", -1, 1, 0, 3, Q("3.702 in")),
    Sketcher.Constraint("DistanceX", -1, 1, 0, 3, 17.93875),
])
pocket8 = doc.addObject("PartDesign::Pocket", "Pocket007")
body.addObject(pocket8)
pocket8.Profile = sketch16
pocket8.Length = Q("0.125 in")
doc.recompute()

fillet = doc.addObject("PartDesign::Fillet", "Fillet")
body.addObject(fillet)
fillet.Base = (pocket8, edges_at(pocket8, [(-13.335, -22.86, 20.655), (16.383, -22.86, 20.655), (1.524, -22.86, 18.212)]))
fillet.Radius = Q("0.075 in")
doc.recompute()

fillet2 = doc.addObject("PartDesign::Fillet", "Fillet001")
body.addObject(fillet2)
fillet2.Base = (fillet, edges_at(fillet, [(-6.707, -22.86, 49.204), (18.693, -22.86, 103.814), (-20.55, -22.86, 99.508)]))
fillet2.Radius = Q("0.075 in")

# Sketch on XZ plane
sketch17 = doc.addObject("Sketcher::SketchObject", "Sketch016")
body.addObject(sketch17)
sketch17.AttachmentSupport = (doc.XZ_Plane, [""])
sketch17.MapMode = "FlatFace"
sketch17.AttachmentOffset = App.Placement(Vector(0, 0, 1.025 * 25.4), App.Rotation())
sketch17.addGeometry([
    Part.LineSegment(Vector(40, 107, 0), Vector(0, 147, 0)),  # 0
    Part.LineSegment(Vector(0, 147, 0), Vector(-40, 107, 0)),  # 1
    Part.LineSegment(Vector(-40, 107, 0), Vector(-55, 121, 0)),  # 2
    Part.LineSegment(Vector(-55, 121, 0), Vector(0, 176, 0)),  # 3
    Part.LineSegment(Vector(0, 176, 0), Vector(55, 121, 0)),  # 4
    Part.LineSegment(Vector(55, 121, 0), Vector(40, 107, 0)),  # 5
], False)
sketch17.addConstraint([
    Sketcher.Constraint("Coincident", 0, 2, 1, 1),
    Sketcher.Constraint("Coincident", 1, 2, 2, 1),
    Sketcher.Constraint("Coincident", 2, 2, 3, 1),
    Sketcher.Constraint("Coincident", 3, 2, 4, 1),
    Sketcher.Constraint("Coincident", 4, 2, 5, 1),
    Sketcher.Constraint("Coincident", 5, 2, 0, 1),
    Sketcher.Constraint("Symmetric", 2, 2, 4, 2, -2),
    Sketcher.Constraint("Symmetric", 1, 2, 5, 2, -2),
    Sketcher.Constraint("PointOnObject", 0, 2, -2),
    Sketcher.Constraint("PointOnObject", 3, 2, -2),
    Sketcher.Constraint("Perpendicular", 0, 1),
    Sketcher.Constraint("Perpendicular", 1, 2),
    Sketcher.Constraint("Perpendicular", 2, 3),
    Sketcher.Constraint("Distance", 2, Q("0.8 in")),
    Sketcher.Constraint("Distance", 0, Q("2.25 in")),
    Sketcher.Constraint("DistanceY", -1, 1, 0, 2, 147.449877),
])
pocket9 = doc.addObject("PartDesign::Pocket", "Pocket008")
body.addObject(pocket9)
pocket9.Profile = sketch17
pocket9.Length = Q("2.05 in")

# Sketch on XY plane
sketch18 = doc.addObject("Sketcher::SketchObject", "Sketch017")
body.addObject(sketch18)
sketch18.AttachmentSupport = (doc.XY_Plane, [""])
sketch18.MapMode = "FlatFace"
sketch18.AttachmentOffset = App.Placement(Vector(0, 0, 4.942 * 25.4), App.Rotation())
sketch18.addGeometry([
    Part.LineSegment(Vector(3.2, -26, 0), Vector(-3.2, -26, 0)),  # 0
    Part.LineSegment(Vector(-3.2, -26, 0), Vector(-3.2, -27.9, 0)),  # 1
    Part.LineSegment(Vector(-3.2, -27.9, 0), Vector(-6.3, -27.9, 0)),  # 2
    Part.LineSegment(Vector(-6.3, -27.9, 0), Vector(-6.3, -31.1, 0)),  # 3
    Part.LineSegment(Vector(-6.3, -31.1, 0), Vector(6.3, -31.1, 0)),  # 4
    Part.LineSegment(Vector(6.3, -31.1, 0), Vector(6.3, -27.9, 0)),  # 5
    Part.LineSegment(Vector(6.3, -27.9, 0), Vector(3.2, -27.9, 0)),  # 6
    Part.LineSegment(Vector(3.2, -27.9, 0), Vector(3.2, -26, 0)),  # 7
], False)
sketch18.addConstraint([
    Sketcher.Constraint("Coincident", 0, 2, 1, 1),
    Sketcher.Constraint("Coincident", 1, 2, 2, 1),
    Sketcher.Constraint("Coincident", 2, 2, 3, 1),
    Sketcher.Constraint("Coincident", 3, 2, 4, 1),
    Sketcher.Constraint("Coincident", 4, 2, 5, 1),
    Sketcher.Constraint("Coincident", 5, 2, 6, 1),
    Sketcher.Constraint("Coincident", 6, 2, 7, 1),
    Sketcher.Constraint("Coincident", 7, 2, 0, 1),
    Sketcher.Constraint("Horizontal", 0),
    Sketcher.Constraint("Vertical", 1),
    Sketcher.Constraint("Horizontal", 2),
    Sketcher.Constraint("Vertical", 3),
    Sketcher.Constraint("Horizontal", 4),
    Sketcher.Constraint("Vertical", 5),
    Sketcher.Constraint("Horizontal", 6),
    Sketcher.Constraint("Vertical", 7),
    Sketcher.Constraint("Symmetric", 2, 2, 5, 2, -2),
    Sketcher.Constraint("Equal", 2, 6),
    Sketcher.Constraint("Equal", 6, 3),
    Sketcher.Constraint("DistanceX", 4, 1, 4, 2, Q("0.5 in")),
    Sketcher.Constraint("DistanceX", 0, 2, 0, 1, Q("0.25 in")),
    Sketcher.Constraint("DistanceY", 1, 2, -1, 1, Q("1.1 in")),
    Sketcher.Constraint("DistanceY", 3, 2, 0, 2, Q("0.2 in")),
])
pad5 = doc.addObject("PartDesign::Pad", "Pad004")
body.addObject(pad5)
pad5.Profile = sketch18
pad5.Length = Q("4.25 in")
pad5.Reversed = True
doc.recompute()

fillet3 = doc.addObject("PartDesign::Fillet", "Fillet002")
body.addObject(fillet3)
fillet3.Base = (pad5, edges_at(pad5, [
    (6.35, -29.527, 125.527),
    (6.35, -27.94, 71.552),
    (6.35, -31.115, 71.552),
    (-6.35, -29.527, 17.577),
    (-6.35, -31.115, 71.552),
    (-6.35, -27.94, 71.552),
    (6.35, -29.527, 17.577),
    (-6.35, -29.527, 125.527),
]))
fillet3.Radius = Q("0.05 in")

# Sketch on YZ plane
sketch19 = doc.addObject("Sketcher::SketchObject", "Sketch018")
body.addObject(sketch19)
sketch19.AttachmentSupport = (doc.YZ_Plane, [""])
sketch19.MapMode = "FlatFace"
sketch19.AttachmentOffset = App.Placement(Vector(0, 0, -1.3 * 25.4), App.Rotation())
sketch19.addGeometry([
    Part.LineSegment(Vector(-26, 87, 0), Vector(-32, 87, 0)),
    Part.LineSegment(Vector(-32, 87, 0), Vector(-32, 126, 0)),
    Part.LineSegment(Vector(-32, 126, 0), Vector(-26, 126, 0)),
    Part.LineSegment(Vector(-26, 126, 0), Vector(-26, 87, 0)),
], False)
sketch19.addConstraint([
    Sketcher.Constraint("Coincident", 0, 2, 1, 1),
    Sketcher.Constraint("Coincident", 1, 2, 2, 1),
    Sketcher.Constraint("Coincident", 2, 2, 3, 1),
    Sketcher.Constraint("Coincident", 3, 2, 0, 1),
    Sketcher.Constraint("Horizontal", 0),
    Sketcher.Constraint("Vertical", 1),
    Sketcher.Constraint("Horizontal", 2),
    Sketcher.Constraint("Vertical", 3),
    Sketcher.Constraint("DistanceY", 1, 1, 1, 2, Q("1.5 in")),
    Sketcher.Constraint("DistanceX", 0, 2, 0, 1, Q("0.25 in")),
    Sketcher.Constraint("DistanceX", 0, 2, -1, 1, Q("1.275 in")),
    Sketcher.Constraint("DistanceY", -1, 1, 0, 2, Q("3.442 in")),
])
pocket10 = doc.addObject("PartDesign::Pocket", "Pocket009")
body.addObject(pocket10)
pocket10.Profile = sketch19
pocket10.Type = "ThroughAll"
pocket10.Reversed = True

doc.recompute()
